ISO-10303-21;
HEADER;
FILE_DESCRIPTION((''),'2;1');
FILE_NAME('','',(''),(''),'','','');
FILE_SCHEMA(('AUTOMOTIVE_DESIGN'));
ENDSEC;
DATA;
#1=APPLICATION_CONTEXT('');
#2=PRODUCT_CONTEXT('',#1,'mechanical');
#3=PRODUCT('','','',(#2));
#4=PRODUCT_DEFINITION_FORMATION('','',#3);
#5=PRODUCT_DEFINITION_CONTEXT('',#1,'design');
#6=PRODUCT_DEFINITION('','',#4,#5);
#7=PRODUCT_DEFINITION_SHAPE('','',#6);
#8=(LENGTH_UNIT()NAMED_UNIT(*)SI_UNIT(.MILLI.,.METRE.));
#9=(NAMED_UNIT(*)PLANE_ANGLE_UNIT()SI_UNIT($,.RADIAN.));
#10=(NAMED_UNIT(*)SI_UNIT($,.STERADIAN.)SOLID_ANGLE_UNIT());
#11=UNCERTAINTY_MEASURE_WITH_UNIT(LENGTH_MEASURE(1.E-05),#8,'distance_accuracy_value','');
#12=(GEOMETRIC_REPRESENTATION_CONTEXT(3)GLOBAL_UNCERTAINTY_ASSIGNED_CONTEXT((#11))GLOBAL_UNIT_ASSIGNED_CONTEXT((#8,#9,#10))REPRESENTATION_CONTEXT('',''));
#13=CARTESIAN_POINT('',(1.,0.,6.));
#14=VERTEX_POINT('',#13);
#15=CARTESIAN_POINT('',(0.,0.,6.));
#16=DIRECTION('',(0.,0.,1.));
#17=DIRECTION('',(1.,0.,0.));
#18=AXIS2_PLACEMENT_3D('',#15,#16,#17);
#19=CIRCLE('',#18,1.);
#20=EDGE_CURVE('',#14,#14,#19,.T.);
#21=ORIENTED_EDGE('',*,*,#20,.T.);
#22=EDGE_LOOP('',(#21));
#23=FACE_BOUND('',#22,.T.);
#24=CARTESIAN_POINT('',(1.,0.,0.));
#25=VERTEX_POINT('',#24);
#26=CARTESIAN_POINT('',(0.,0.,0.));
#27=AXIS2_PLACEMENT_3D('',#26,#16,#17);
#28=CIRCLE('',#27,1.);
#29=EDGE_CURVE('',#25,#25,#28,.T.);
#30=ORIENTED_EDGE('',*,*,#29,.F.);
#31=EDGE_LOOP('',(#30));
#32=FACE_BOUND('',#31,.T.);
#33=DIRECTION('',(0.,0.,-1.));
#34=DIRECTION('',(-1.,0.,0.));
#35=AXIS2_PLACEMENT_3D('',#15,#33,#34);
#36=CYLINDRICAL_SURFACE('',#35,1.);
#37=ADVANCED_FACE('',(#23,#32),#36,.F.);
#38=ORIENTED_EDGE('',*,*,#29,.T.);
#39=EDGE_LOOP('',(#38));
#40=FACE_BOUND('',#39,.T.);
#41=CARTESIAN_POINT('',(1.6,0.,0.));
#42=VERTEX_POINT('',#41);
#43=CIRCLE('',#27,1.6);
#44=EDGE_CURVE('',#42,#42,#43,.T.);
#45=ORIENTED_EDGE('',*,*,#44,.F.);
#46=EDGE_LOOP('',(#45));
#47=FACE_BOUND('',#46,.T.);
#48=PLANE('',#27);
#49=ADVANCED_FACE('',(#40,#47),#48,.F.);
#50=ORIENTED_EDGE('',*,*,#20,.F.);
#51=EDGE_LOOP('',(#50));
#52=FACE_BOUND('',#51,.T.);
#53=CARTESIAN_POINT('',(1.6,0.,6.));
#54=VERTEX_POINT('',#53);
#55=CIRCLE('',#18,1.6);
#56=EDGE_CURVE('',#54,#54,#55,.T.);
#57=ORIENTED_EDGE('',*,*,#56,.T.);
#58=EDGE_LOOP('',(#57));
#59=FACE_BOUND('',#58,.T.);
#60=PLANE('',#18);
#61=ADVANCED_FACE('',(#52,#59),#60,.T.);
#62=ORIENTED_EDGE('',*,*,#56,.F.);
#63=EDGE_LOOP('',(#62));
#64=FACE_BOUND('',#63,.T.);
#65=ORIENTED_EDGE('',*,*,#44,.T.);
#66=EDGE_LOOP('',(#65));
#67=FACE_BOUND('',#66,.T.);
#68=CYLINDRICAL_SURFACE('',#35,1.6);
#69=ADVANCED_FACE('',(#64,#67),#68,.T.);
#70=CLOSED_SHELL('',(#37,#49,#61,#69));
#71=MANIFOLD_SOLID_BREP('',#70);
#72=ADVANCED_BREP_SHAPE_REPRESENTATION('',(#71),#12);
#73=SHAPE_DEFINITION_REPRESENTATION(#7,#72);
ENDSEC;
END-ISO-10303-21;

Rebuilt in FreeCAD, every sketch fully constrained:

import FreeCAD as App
import Part
import Sketcher

doc = App.newDocument("Part")
body = doc.addObject("PartDesign::Body", "Body")

# Sketch on XY plane
sketch1 = doc.addObject("Sketcher::SketchObject", "Sketch")
body.addObject(sketch1)
sketch1.AttachmentSupport = (doc.XY_Plane, [""])
sketch1.MapMode = "FlatFace"
sketch1.addGeometry([
    Part.Circle(App.Vector(0, 0, 0), App.Vector(0, 0, 1), 1.6),
    Part.Circle(App.Vector(0, 0, 0), App.Vector(0, 0, 1), 1),
], False)
sketch1.addConstraint([
    Sketcher.Constraint("Coincident", 0, 3, -1, 1),
    Sketcher.Constraint("Coincident", 1, 3, -1, 1),
    Sketcher.Constraint("Diameter", 1, 2.0),
    Sketcher.Constraint("Diameter", 0, 3.2),
])
pad1 = doc.addObject("PartDesign::Pad", "Pad")
body.addObject(pad1)
pad1.Profile = sketch1
pad1.Length = 6

doc.recompute()
